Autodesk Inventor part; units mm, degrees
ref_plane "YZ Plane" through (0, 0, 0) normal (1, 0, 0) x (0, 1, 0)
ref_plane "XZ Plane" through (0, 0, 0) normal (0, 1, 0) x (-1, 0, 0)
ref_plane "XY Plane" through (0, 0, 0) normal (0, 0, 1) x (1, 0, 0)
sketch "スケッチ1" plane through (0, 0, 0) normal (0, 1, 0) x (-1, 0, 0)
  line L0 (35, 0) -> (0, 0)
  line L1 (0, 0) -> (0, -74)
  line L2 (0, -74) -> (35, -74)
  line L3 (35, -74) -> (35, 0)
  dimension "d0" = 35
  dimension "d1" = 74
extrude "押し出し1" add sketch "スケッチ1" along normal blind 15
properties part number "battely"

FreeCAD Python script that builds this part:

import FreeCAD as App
import Part
import Sketcher
Q = App.Units.Quantity


def add_polygon(sketch, points):
    """Adds a closed chain of lines whose ends are joined by coincident constraints."""
    first, n = sketch.GeometryCount, len(points)
    for a, b in zip(points, points[1:] + points[:1]):
        sketch.addGeometry(Part.LineSegment(App.Vector(*a, 0), App.Vector(*b, 0)), False)
    for i in range(n):
        sketch.addConstraint(Sketcher.Constraint("Coincident", first + i, 2, first + (i + 1) % n, 1))

doc = App.newDocument("Part")
params = doc.addObject("Spreadsheet::Sheet", "Params")
for row, (alias, value) in enumerate([
    ("sketch1_width", "35 mm"),
    ("sketch1_height", "74 mm"),
    ("pad1_length", "15 mm"),
], start=1):
    params.set(f"A{row}", alias)
    params.set(f"B{row}", "=" + value)
    params.setAlias(f"B{row}", alias)

body = doc.addObject("PartDesign::Body", "Body")

sketch1 = body.newObject("Sketcher::SketchObject", "Sketch")
sketch1.AttachmentSupport = (doc.getObject("XZ_Plane"), [""])
sketch1.MapMode = "FlatFace"
add_polygon(sketch1, [(-35, -74), (-35, 0), (0, 0), (0, -74)])
sketch1.addConstraint([
    Sketcher.Constraint("Vertical", 0),
    Sketcher.Constraint("Horizontal", 1),
    Sketcher.Constraint("Vertical", 2),
    Sketcher.Constraint("Horizontal", 3),
    Sketcher.Constraint("Coincident", 1, 2, -1, 1),
    Sketcher.Constraint("DistanceX", 1, 1, 1, 2, Q("35 mm")),
    Sketcher.Constraint("DistanceY", 0, 1, 0, 2, Q("74 mm")),
])
sketch1.setExpression("Constraints[9]", "Params.sketch1_width")
sketch1.setExpression("Constraints[10]", "Params.sketch1_height")
pad1 = body.newObject("PartDesign::Pad", "Pad")
pad1.Profile = sketch1
pad1.setExpression("Length", "Params.pad1_length")
pad1.Reversed = True

doc.recompute()
